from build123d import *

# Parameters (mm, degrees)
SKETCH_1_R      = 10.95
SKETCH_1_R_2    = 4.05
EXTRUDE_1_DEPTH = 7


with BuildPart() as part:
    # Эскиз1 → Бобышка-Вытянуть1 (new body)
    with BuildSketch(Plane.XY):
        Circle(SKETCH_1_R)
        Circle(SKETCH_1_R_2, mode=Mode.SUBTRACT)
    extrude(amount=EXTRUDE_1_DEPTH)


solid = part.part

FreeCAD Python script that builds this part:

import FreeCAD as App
import Part
import Sketcher

doc = App.newDocument("Part")
body = doc.addObject("PartDesign::Body", "Body")

sketch1 = doc.addObject("Sketcher::SketchObject", "Sketch")
body.addObject(sketch1)
sketch1.AttachmentSupport = (doc.XY_Plane, [""])
sketch1.MapMode = "FlatFace"
sketch1.addGeometry([
    Part.Circle(App.Vector(0, 0, 0), App.Vector(0, 0, 1), 10.9),
    Part.Circle(App.Vector(0, 0, 0), App.Vector(0, 0, 1), 4),
], False)
sketch1.addConstraint([
    Sketcher.Constraint("Coincident", 0, 3, -1, 1),
    Sketcher.Constraint("Coincident", 1, 3, -1, 1),
    Sketcher.Constraint("Diameter", 0, 21.9),
    Sketcher.Constraint("Diameter", 1, 8.1),
])
pad1 = doc.addObject("PartDesign::Pad", "Pad")
body.addObject(pad1)
pad1.Profile = sketch1
pad1.Length = 7

doc.recompute()
